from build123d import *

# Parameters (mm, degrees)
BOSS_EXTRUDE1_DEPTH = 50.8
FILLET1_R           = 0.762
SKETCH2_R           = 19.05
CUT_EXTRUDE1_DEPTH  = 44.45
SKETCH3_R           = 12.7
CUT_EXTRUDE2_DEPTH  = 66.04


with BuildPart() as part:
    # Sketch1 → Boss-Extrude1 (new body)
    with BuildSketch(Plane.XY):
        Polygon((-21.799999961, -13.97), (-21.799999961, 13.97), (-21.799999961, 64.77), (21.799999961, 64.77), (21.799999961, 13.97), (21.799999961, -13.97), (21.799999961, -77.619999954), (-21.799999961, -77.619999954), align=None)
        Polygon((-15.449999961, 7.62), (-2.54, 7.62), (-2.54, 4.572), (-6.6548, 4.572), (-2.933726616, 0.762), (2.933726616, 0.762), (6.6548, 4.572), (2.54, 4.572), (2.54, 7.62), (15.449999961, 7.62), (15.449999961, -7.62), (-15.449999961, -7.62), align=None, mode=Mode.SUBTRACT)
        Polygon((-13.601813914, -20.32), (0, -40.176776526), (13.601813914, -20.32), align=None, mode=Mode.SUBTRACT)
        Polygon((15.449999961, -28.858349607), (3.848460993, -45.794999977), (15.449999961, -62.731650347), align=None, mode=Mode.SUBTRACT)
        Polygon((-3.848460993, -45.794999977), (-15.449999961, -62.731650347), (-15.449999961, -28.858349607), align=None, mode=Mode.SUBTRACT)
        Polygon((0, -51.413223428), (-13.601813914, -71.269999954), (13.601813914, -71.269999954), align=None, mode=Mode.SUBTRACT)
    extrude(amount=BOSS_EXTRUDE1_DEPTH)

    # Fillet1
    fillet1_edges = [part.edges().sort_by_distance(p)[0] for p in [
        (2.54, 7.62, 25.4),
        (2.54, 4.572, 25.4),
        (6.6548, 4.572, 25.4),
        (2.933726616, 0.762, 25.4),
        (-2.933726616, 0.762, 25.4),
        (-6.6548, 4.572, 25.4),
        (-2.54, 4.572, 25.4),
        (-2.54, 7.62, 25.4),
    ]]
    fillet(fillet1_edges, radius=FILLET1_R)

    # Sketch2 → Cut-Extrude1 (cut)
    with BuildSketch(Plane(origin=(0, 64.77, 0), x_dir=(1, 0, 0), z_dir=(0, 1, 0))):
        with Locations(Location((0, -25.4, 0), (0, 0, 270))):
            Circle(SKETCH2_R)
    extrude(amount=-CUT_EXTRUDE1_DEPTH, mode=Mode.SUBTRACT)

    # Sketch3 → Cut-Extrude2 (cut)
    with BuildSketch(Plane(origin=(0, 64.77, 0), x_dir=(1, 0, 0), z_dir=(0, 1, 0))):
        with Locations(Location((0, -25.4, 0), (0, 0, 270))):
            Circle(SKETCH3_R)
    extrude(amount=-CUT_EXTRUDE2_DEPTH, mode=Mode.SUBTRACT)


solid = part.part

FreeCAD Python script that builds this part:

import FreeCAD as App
import Part
import Sketcher
Q = App.Units.Quantity


def edges_at(feature, points):
    """Names of the edges that pass closest to the given points."""
    edges = feature.Shape.Edges
    near = lambda p: min(range(len(edges)), key=lambda i: edges[i].distToShape(Part.Vertex(*p))[0])
    return sorted({f"Edge{near(p) + 1}" for p in points})


def add_polygon(sketch, points):
    """Adds a closed chain of lines whose ends are joined by coincident constraints."""
    first, n = sketch.GeometryCount, len(points)
    for a, b in zip(points, points[1:] + points[:1]):
        sketch.addGeometry(Part.LineSegment(App.Vector(*a, 0), App.Vector(*b, 0)), False)
    for i in range(n):
        sketch.addConstraint(Sketcher.Constraint("Coincident", first + i, 2, first + (i + 1) % n, 1))

doc = App.newDocument("Part")
body = doc.addObject("PartDesign::Body", "Body")

sketch1 = body.newObject("Sketcher::SketchObject", "Sketch")
sketch1.AttachmentSupport = (doc.getObject("XY_Plane"), [""])
sketch1.MapMode = "FlatFace"
add_polygon(sketch1, [(-21.8, 64.8), (-21.8, -77.6), (21.8, -77.6), (21.8, 64.8)])
add_polygon(sketch1, [(0, -51.4), (13.6, -71.3), (-13.6, -71.3)])
add_polygon(sketch1, [(15.4, -28.9), (15.4, -62.7), (3.8, -45.8)])
add_polygon(sketch1, [(-3.8, -45.8), (-15.4, -62.7), (-15.4, -28.9)])
add_polygon(sketch1, [(-13.6, -20.3), (13.6, -20.3), (0, -40.2)])
add_polygon(sketch1, [(-15.4, 7.6), (-2.5, 7.6), (-2.5, 4.6), (-6.7, 4.6), (-2.9, 0.8), (2.9, 0.8), (6.7, 4.6), (2.5, 4.6), (2.5, 7.6), (15.4, 7.6), (15.4, -7.6), (-15.4, -7.6)])
sketch1.addConstraint(Sketcher.Constraint("Vertical", 0))
sketch1.addConstraint(Sketcher.Constraint("Horizontal", 1))
sketch1.addConstraint(Sketcher.Constraint("Vertical", 2))
sketch1.addConstraint(Sketcher.Constraint("Horizontal", 3))
sketch1.addConstraint(Sketcher.Constraint("Horizontal", 5))
sketch1.addConstraint(Sketcher.Constraint("Vertical", 7))
sketch1.addConstraint(Sketcher.Constraint("Vertical", 11))
sketch1.addConstraint(Sketcher.Constraint("Horizontal", 13))
sketch1.addConstraint(Sketcher.Constraint("Horizontal", 16))
sketch1.addConstraint(Sketcher.Constraint("Vertical", 17))
sketch1.addConstraint(Sketcher.Constraint("Horizontal", 18))
sketch1.addConstraint(Sketcher.Constraint("Horizontal", 20))
sketch1.addConstraint(Sketcher.Constraint("Horizontal", 22))
sketch1.addConstraint(Sketcher.Constraint("Vertical", 23))
sketch1.addConstraint(Sketcher.Constraint("Horizontal", 24))
sketch1.addConstraint(Sketcher.Constraint("Vertical", 25))
sketch1.addConstraint(Sketcher.Constraint("Horizontal", 26))
sketch1.addConstraint(Sketcher.Constraint("Vertical", 27))
sketch1.addConstraint(Sketcher.Constraint("Symmetric", 24, 2, 26, 2, -1, 1))
sketch1.addConstraint(Sketcher.Constraint("Symmetric", 7, 2, 10, 2, -2))
sketch1.addConstraint(Sketcher.Constraint("Symmetric", 8, 2, 12, 2, -2))
sketch1.addConstraint(Sketcher.Constraint("Symmetric", 18, 2, 21, 2, -2))
sketch1.addConstraint(Sketcher.Constraint("Symmetric", 16, 2, 23, 2, -2))
sketch1.addConstraint(Sketcher.Constraint("PointOnObject", 6, 2, -2))
sketch1.addConstraint(Sketcher.Constraint("PointOnObject", 14, 2, -2))
sketch1.addConstraint(Sketcher.Constraint("Parallel", 4, 8))
sketch1.addConstraint(Sketcher.Constraint("Parallel", 6, 9))
sketch1.addConstraint(Sketcher.Constraint("Parallel", 9, 10))
sketch1.addConstraint(Sketcher.Constraint("Parallel", 8, 12))
sketch1.addConstraint(Sketcher.Constraint("Parallel", 10, 14))
sketch1.addConstraint(Sketcher.Constraint("Parallel", 12, 15))
sketch1.addConstraint(Sketcher.Constraint("Vertical", 4, 2, 13, 2))
sketch1.addConstraint(Sketcher.Constraint("Vertical", 9, 2, 24, 2))
sketch1.addConstraint(Sketcher.Constraint("Equal", 19, 21))
sketch1.addConstraint(Sketcher.Constraint("DistanceY", 25, 2, 25, 1, Q("0.6 in")))
sketch1.addConstraint(Sketcher.Constraint("DistanceY", 17, 2, 17, 1, Q("0.12 in")))
sketch1.addConstraint(Sketcher.Constraint("DistanceY", 13, 2, -1, 1, Q("0.8 in")))
sketch1.addConstraint(Sketcher.Constraint("DistanceX", 16, 2, -1, 1, Q("0.1 in")))
sketch1.addConstraint(Sketcher.Constraint("DistanceX", 18, 2, 18, 1, Q("0.162 in")))
sketch1.addConstraint(Sketcher.Constraint("DistanceY", -1, 1, 2, 2, Q("2.55 in")))
sketch1.addConstraint(Sketcher.Constraint("DistanceY", -1, 1, 19, 2, Q("0.03 in")))
sketch1.addConstraint(Sketcher.Constraint("DistanceY", 1, 2, 4, 2, Q("0.25 in")))
sketch1.addConstraint(Sketcher.Constraint("DistanceX", 7, 2, 1, 2, Q("0.25 in")))
sketch1.addConstraint(Sketcher.Constraint("DistanceX", 0, 2, 10, 2, Q("0.25 in")))
sketch1.addConstraint(Sketcher.Constraint("DistanceX", 1, 1, 1, 2, 43.6))
sketch1.addConstraint(Sketcher.Constraint("DistanceY", 0, 2, 0, 1, 142.39))
sketch1.addConstraint(Sketcher.Constraint("DistanceY", 7, 2, 7, 1, 33.873301))
sketch1.addConstraint(Sketcher.Constraint("DistanceY", 8, 2, -1, 1, 45.795))
sketch1.addConstraint(Sketcher.Constraint("Distance", 4, 24.068671))
sketch1.addConstraint(Sketcher.Constraint("DistanceX", 5, 2, 5, 1, 27.203628))
sketch1.addConstraint(Sketcher.Constraint("DistanceX", 20, 1, 20, 2, 5.867453))
pad1 = body.newObject("PartDesign::Pad", "Pad")
pad1.Profile = sketch1
pad1.Length = Q("2 in")
doc.recompute()

fillet = body.newObject("PartDesign::Fillet", "Fillet")
fillet.Base = (pad1, edges_at(pad1, [
    (2.54, 7.62, 25.4),
    (2.54, 4.572, 25.4),
    (6.655, 4.572, 25.4),
    (2.934, 0.762, 25.4),
    (-2.934, 0.762, 25.4),
    (-6.655, 4.572, 25.4),
    (-2.54, 4.572, 25.4),
    (-2.54, 7.62, 25.4),
]))
fillet.Radius = Q("0.03 in")

sketch2 = body.newObject("Sketcher::SketchObject", "Sketch001")
sketch2.AttachmentSupport = (doc.getObject("XZ_Plane"), [""])
sketch2.MapMode = "FlatFace"
sketch2.AttachmentOffset = App.Placement(App.Vector(0, 0, -2.55 * 25.4), App.Rotation())
sketch2.addGeometry(Part.Circle(App.Vector(0, 25, 0), App.Vector(0, 0, 1), 19), False)
sketch2.addConstraint(Sketcher.Constraint("PointOnObject", 0, 3, -2))
sketch2.addConstraint(Sketcher.Constraint("Diameter", 0, Q("1.5 in")))
sketch2.addConstraint(Sketcher.Constraint("DistanceY", -1, 1, 0, 3, Q("1 in")))
pocket1 = body.newObject("PartDesign::Pocket", "Pocket")
pocket1.Profile = sketch2
pocket1.Length = Q("1.75 in")
pocket1.Reversed = True

sketch3 = body.newObject("Sketcher::SketchObject", "Sketch002")
sketch3.AttachmentSupport = (doc.getObject("XZ_Plane"), [""])
sketch3.MapMode = "FlatFace"
sketch3.AttachmentOffset = App.Placement(App.Vector(0, 0, -2.55 * 25.4), App.Rotation())
sketch3.addGeometry(Part.Circle(App.Vector(0, 25, 0), App.Vector(0, 0, 1), 13), False)
sketch3.addConstraint(Sketcher.Constraint("PointOnObject", 0, 3, -2))
sketch3.addConstraint(Sketcher.Constraint("Diameter", 0, Q("1 in")))
sketch3.addConstraint(Sketcher.Constraint("DistanceY", -1, 1, 0, 3, Q("1 in")))
pocket2 = body.newObject("PartDesign::Pocket", "Pocket001")
pocket2.Profile = sketch3
pocket2.Length = Q("2.6 in")
pocket2.Reversed = True

doc.recompute()
